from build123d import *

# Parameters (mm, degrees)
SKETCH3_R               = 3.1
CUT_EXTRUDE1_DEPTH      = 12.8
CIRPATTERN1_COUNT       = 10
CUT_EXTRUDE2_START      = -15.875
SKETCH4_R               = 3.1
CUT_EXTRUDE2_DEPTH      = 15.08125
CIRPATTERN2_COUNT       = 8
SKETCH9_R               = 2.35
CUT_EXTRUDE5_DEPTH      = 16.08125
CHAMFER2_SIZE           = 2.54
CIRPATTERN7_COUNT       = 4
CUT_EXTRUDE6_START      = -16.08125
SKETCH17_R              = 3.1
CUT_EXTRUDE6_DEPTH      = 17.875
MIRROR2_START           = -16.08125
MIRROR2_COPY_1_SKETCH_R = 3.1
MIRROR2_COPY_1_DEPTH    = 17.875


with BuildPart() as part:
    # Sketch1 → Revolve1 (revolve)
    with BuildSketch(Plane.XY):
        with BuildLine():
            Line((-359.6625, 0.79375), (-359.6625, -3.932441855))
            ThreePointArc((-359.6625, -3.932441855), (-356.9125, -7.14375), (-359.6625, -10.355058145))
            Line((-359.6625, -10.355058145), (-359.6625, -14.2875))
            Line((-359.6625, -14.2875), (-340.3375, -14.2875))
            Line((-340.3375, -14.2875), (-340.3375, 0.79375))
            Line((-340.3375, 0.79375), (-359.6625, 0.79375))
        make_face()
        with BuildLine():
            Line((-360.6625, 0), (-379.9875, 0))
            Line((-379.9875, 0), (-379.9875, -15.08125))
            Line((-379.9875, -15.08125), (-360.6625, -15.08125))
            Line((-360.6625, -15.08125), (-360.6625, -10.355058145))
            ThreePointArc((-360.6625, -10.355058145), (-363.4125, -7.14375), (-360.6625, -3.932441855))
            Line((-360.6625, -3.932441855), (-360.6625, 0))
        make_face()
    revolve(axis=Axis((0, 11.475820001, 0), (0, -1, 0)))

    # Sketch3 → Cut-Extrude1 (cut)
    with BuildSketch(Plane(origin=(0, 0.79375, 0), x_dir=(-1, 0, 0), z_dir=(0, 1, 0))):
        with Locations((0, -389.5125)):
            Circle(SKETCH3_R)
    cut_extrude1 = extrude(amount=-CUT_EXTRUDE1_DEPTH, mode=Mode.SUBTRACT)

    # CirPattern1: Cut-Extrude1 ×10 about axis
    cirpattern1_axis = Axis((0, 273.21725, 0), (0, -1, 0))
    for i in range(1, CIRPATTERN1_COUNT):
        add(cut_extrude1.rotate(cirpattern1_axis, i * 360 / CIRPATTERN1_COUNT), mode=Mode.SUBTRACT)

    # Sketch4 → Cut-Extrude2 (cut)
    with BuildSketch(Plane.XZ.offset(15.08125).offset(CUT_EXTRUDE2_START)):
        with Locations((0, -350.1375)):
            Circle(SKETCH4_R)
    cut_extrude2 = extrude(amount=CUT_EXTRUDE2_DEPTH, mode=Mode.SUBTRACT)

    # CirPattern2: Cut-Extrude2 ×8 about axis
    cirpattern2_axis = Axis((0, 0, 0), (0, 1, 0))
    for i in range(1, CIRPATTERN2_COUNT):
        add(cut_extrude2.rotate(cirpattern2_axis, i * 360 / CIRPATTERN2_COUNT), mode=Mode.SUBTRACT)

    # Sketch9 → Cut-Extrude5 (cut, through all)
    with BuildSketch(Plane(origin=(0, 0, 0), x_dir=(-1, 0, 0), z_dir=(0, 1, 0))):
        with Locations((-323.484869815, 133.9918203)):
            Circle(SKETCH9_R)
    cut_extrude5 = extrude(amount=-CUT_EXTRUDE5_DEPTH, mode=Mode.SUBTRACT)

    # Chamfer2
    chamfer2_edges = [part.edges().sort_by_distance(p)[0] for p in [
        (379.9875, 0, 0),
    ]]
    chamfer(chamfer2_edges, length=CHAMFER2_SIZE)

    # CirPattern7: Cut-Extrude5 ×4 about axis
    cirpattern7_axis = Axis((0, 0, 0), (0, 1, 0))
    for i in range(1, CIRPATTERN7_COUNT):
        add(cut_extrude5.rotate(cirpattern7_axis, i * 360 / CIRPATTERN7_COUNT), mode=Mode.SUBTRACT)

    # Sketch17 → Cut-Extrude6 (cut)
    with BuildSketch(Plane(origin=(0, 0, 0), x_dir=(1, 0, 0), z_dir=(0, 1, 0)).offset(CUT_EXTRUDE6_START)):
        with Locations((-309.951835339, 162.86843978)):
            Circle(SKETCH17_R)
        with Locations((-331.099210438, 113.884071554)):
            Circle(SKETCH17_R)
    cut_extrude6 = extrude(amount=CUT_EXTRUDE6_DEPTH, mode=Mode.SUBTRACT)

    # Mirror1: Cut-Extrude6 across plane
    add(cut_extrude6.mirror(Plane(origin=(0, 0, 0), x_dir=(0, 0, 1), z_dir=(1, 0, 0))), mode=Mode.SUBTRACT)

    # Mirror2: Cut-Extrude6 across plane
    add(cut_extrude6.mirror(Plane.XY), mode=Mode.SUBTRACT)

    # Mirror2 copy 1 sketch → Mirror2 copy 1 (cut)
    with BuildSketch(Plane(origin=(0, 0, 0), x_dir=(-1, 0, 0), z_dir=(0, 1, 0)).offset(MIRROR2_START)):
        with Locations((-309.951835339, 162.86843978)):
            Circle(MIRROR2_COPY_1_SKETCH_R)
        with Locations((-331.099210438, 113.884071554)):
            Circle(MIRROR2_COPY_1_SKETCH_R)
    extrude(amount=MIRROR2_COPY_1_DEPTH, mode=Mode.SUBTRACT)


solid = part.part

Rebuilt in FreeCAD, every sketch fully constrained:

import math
import FreeCAD as App
import Part
import Sketcher
from FreeCAD import Vector


def edges_at(feature, points):
    """Names of the edges that pass closest to the given points."""
    edges = feature.Shape.Edges
    near = lambda p: min(range(len(edges)), key=lambda i: edges[i].distToShape(Part.Vertex(*p))[0])
    return sorted({f"Edge{near(p) + 1}" for p in points})

doc = App.newDocument("Part")
body = doc.addObject("PartDesign::Body", "Body")
body.AllowCompound = True

sketch1 = body.newObject("Sketcher::SketchObject", "Sketch")
sketch1.AttachmentSupport = (doc.getObject("XY_Plane"), [""])
sketch1.MapMode = "FlatFace"
sketch1.addGeometry(Part.LineSegment(Vector(-359.6625, 0.79375, 0), Vector(-359.6625, -3.932442, 0)), False)
sketch1.addGeometry(Part.ArcOfCircle(Part.Circle(Vector(-360.1625, -7.14375, 0), Vector(0, 0, 1), 3.25), math.radians(-81.150117), math.radians(81.150117)), False)
sketch1.addGeometry(Part.LineSegment(Vector(-359.6625, -10.355058, 0), Vector(-359.6625, -14.2875, 0)), False)
sketch1.addGeometry(Part.LineSegment(Vector(-359.6625, -14.2875, 0), Vector(-340.3375, -14.2875, 0)), False)
sketch1.addGeometry(Part.LineSegment(Vector(-340.3375, -14.2875, 0), Vector(-340.3375, 0.79375, 0)), False)
sketch1.addGeometry(Part.LineSegment(Vector(-340.3375, 0.79375, 0), Vector(-359.6625, 0.79375, 0)), False)
sketch1.addGeometry(Part.LineSegment(Vector(-360.6625, 0, 0), Vector(-379.9875, 0, 0)), False)
sketch1.addGeometry(Part.LineSegment(Vector(-379.9875, 0, 0), Vector(-379.9875, -15.08125, 0)), False)
sketch1.addGeometry(Part.LineSegment(Vector(-379.9875, -15.08125, 0), Vector(-360.6625, -15.08125, 0)), False)
sketch1.addGeometry(Part.LineSegment(Vector(-360.6625, -15.08125, 0), Vector(-360.6625, -10.355058, 0)), False)
sketch1.addGeometry(Part.ArcOfCircle(Part.Circle(Vector(-360.1625, -7.14375, 0), Vector(0, 0, 1), 3.25), math.radians(98.849883), math.radians(261.150117)), False)
sketch1.addGeometry(Part.LineSegment(Vector(-360.6625, -3.932442, 0), Vector(-360.6625, 0, 0)), False)
sketch1.addConstraint(Sketcher.Constraint("Coincident", 0, 2, 1, 2))
sketch1.addConstraint(Sketcher.Constraint("Coincident", 1, 1, 2, 1))
sketch1.addConstraint(Sketcher.Constraint("Coincident", 2, 2, 3, 1))
sketch1.addConstraint(Sketcher.Constraint("Coincident", 3, 2, 4, 1))
sketch1.addConstraint(Sketcher.Constraint("Coincident", 4, 2, 5, 1))
sketch1.addConstraint(Sketcher.Constraint("Coincident", 5, 2, 0, 1))
sketch1.addConstraint(Sketcher.Constraint("Coincident", 6, 2, 7, 1))
sketch1.addConstraint(Sketcher.Constraint("Coincident", 7, 2, 8, 1))
sketch1.addConstraint(Sketcher.Constraint("Coincident", 8, 2, 9, 1))
sketch1.addConstraint(Sketcher.Constraint("Coincident", 9, 2, 10, 2))
sketch1.addConstraint(Sketcher.Constraint("Coincident", 10, 1, 11, 1))
sketch1.addConstraint(Sketcher.Constraint("Coincident", 11, 2, 6, 1))
sketch1.addConstraint(Sketcher.Constraint("Vertical", 0))
sketch1.addConstraint(Sketcher.Constraint("Vertical", 2))
sketch1.addConstraint(Sketcher.Constraint("Horizontal", 3))
sketch1.addConstraint(Sketcher.Constraint("Vertical", 4))
sketch1.addConstraint(Sketcher.Constraint("Horizontal", 5))
sketch1.addConstraint(Sketcher.Constraint("Horizontal", 6))
sketch1.addConstraint(Sketcher.Constraint("Vertical", 7))
sketch1.addConstraint(Sketcher.Constraint("Horizontal", 8))
sketch1.addConstraint(Sketcher.Constraint("Vertical", 9))
sketch1.addConstraint(Sketcher.Constraint("Vertical", 11))
sketch1.addConstraint(Sketcher.Constraint("Coincident", 10, 3, 1, 3))
sketch1.addConstraint(Sketcher.Constraint("Equal", 1, 10))
sketch1.addConstraint(Sketcher.Constraint("PointOnObject", 6, 2, -1))
sketch1.addConstraint(Sketcher.Constraint("Horizontal", 1, 1, 9, 2))
sketch1.addConstraint(Sketcher.Constraint("Horizontal", 0, 2, 10, 1))
sketch1.addConstraint(Sketcher.Constraint("Vertical", 0, 2, 1, 1))
sketch1.addConstraint(Sketcher.Constraint("Equal", 5, 6))
sketch1.addConstraint(Sketcher.Constraint("Equal", 4, 7))
sketch1.addConstraint(Sketcher.Constraint("Equal", 0, 9))
sketch1.addConstraint(Sketcher.Constraint("Radius", 1, 3.25))
sketch1.addConstraint(Sketcher.Constraint("DistanceX", 8, 2, 2, 2, 1.0))
sketch1.addConstraint(Sketcher.Constraint("DistanceX", 3, 1, 3, 2, 19.325))
sketch1.addConstraint(Sketcher.Constraint("DistanceY", 0, 2, 0, 1, 4.726192))
sketch1.addConstraint(Sketcher.Constraint("DistanceY", 2, 2, 2, 1, 3.932442))
sketch1.addConstraint(Sketcher.Constraint("DistanceX", 1, 3, -1, 1, 360.1625))
revolution = body.newObject("PartDesign::Revolution", "Revolution")
revolution.Profile = sketch1
revolution.ReferenceAxis = (sketch1, ["V_Axis"])
revolution.Angle = 360

sketch2 = body.newObject("Sketcher::SketchObject", "Sketch001")
sketch2.AttachmentSupport = (doc.getObject("XZ_Plane"), [""])
sketch2.MapMode = "FlatFace"
sketch2.AttachmentOffset = App.Placement(Vector(0, 0, -0.79375), App.Rotation())
sketch2.addGeometry(Part.Circle(Vector(0, -389.5125, 0), Vector(0, 0, 1), 3.1), False)
sketch2.addConstraint(Sketcher.Constraint("PointOnObject", 0, 3, -2))
sketch2.addConstraint(Sketcher.Constraint("Diameter", 0, 6.2))
sketch2.addConstraint(Sketcher.Constraint("DistanceY", 0, 3, -1, 1, 389.5125))
pocket1 = body.newObject("PartDesign::Pocket", "Pocket")
pocket1.Profile = sketch2
pocket1.Length = 12.8
pocket1.Reversed = True
doc.recompute()

polarpattern = body.newObject("PartDesign::PolarPattern", "PolarPattern")
polarpattern.Originals = [pocket1]
polarpattern.Axis = (doc.getObject("Y_Axis"), [""])
polarpattern.Angle = 360
polarpattern.Occurrences = 10
body.Tip = polarpattern

sketch3 = body.newObject("Sketcher::SketchObject", "Sketch002")
sketch3.AttachmentSupport = (doc.getObject("XZ_Plane"), [""])
sketch3.MapMode = "FlatFace"
sketch3.AttachmentOffset = App.Placement(Vector(0, 0, -0.79375), App.Rotation())
sketch3.addGeometry(Part.Circle(Vector(0, -350.1375, 0), Vector(0, 0, 1), 3.1), False)
sketch3.addConstraint(Sketcher.Constraint("PointOnObject", 0, 3, -2))
sketch3.addConstraint(Sketcher.Constraint("Diameter", 0, 6.2))
sketch3.addConstraint(Sketcher.Constraint("DistanceY", 0, 3, -1, 1, 350.1375))
pocket2 = body.newObject("PartDesign::Pocket", "Pocket001")
pocket2.Profile = sketch3
pocket2.Length = 15.08125
pocket2.Reversed = True
doc.recompute()

polarpattern2 = body.newObject("PartDesign::PolarPattern", "PolarPattern001")
polarpattern2.Originals = [pocket2]
polarpattern2.Axis = (doc.getObject("Y_Axis"), [""])
polarpattern2.Angle = 360
polarpattern2.Occurrences = 8
body.Tip = polarpattern2

sketch4 = body.newObject("Sketcher::SketchObject", "Sketch003")
sketch4.AttachmentSupport = (doc.getObject("XZ_Plane"), [""])
sketch4.MapMode = "FlatFace"
sketch4.addGeometry(Part.Circle(Vector(323.48487, 133.99182, 0), Vector(0, 0, 1), 2.35), False)
sketch4.addConstraint(Sketcher.Constraint("Diameter", 0, 4.7))
sketch4.addConstraint(Sketcher.Constraint("DistanceX", -1, 1, 0, 3, 323.48487))
sketch4.addConstraint(Sketcher.Constraint("DistanceY", -1, 1, 0, 3, 133.99182))
pocket3 = body.newObject("PartDesign::Pocket", "Pocket002")
pocket3.Profile = sketch4
pocket3.Type = "ThroughAll"
pocket3.Reversed = True
doc.recompute()

chamfer = body.newObject("PartDesign::Chamfer", "Chamfer")
chamfer.Base = (pocket3, edges_at(pocket3, [(379.988, 0, 0)]))
chamfer.Size = 2.54
doc.recompute()

polarpattern3 = body.newObject("PartDesign::PolarPattern", "PolarPattern002")
polarpattern3.Originals = [pocket3]
polarpattern3.Axis = (doc.getObject("Y_Axis"), [""])
polarpattern3.Angle = 360
polarpattern3.Occurrences = 4
body.Tip = polarpattern3

sketch5 = body.newObject("Sketcher::SketchObject", "Sketch004")
sketch5.AttachmentSupport = (doc.getObject("XZ_Plane"), [""])
sketch5.MapMode = "FlatFace"
sketch5.AttachmentOffset = App.Placement(Vector(0, 0, 16.08125), App.Rotation())
sketch5.addGeometry(Part.Circle(Vector(-309.951835, -162.86844, 0), Vector(0, 0, 1), 3.1), False)
sketch5.addGeometry(Part.Circle(Vector(-331.09921, -113.884072, 0), Vector(0, 0, 1), 3.1), False)
sketch5.addConstraint(Sketcher.Constraint("Equal", 0, 1))
sketch5.addConstraint(Sketcher.Constraint("Diameter", 0, 6.2))
sketch5.addConstraint(Sketcher.Constraint("DistanceY", 0, 3, -1, 1, 162.86844))
sketch5.addConstraint(Sketcher.Constraint("DistanceX", 1, 3, -1, 1, 331.09921))
sketch5.addConstraint(Sketcher.Constraint("DistanceY", 1, 3, -1, 1, 113.884072))
sketch5.addConstraint(Sketcher.Constraint("DistanceX", 0, 3, -1, 1, 309.951835))
pocket4 = body.newObject("PartDesign::Pocket", "Pocket003")
pocket4.Profile = sketch5
pocket4.Length = 17.875
doc.recompute()

mirrored = body.newObject("PartDesign::Mirrored", "Mirrored")
mirrored.Originals = [pocket4]
mirrored.MirrorPlane = (doc.getObject("YZ_Plane"), [""])
body.Tip = mirrored
doc.recompute()

mirrored2 = body.newObject("PartDesign::Mirrored", "Mirrored001")
mirrored2.Originals = [pocket4]
mirrored2.MirrorPlane = (doc.getObject("XY_Plane"), [""])
body.Tip = mirrored2

sketch6 = body.newObject("Sketcher::SketchObject", "Sketch005")
sketch6.AttachmentSupport = (doc.getObject("XZ_Plane"), [""])
sketch6.MapMode = "FlatFace"
sketch6.AttachmentOffset = App.Placement(Vector(0, 0, 16.08125), App.Rotation())
sketch6.addGeometry(Part.Circle(Vector(309.951835, 162.86844, 0), Vector(0, 0, 1), 3.1), False)
sketch6.addGeometry(Part.Circle(Vector(331.09921, 113.884072, 0), Vector(0, 0, 1), 3.1), False)
sketch6.addConstraint(Sketcher.Constraint("Equal", 0, 1))
sketch6.addConstraint(Sketcher.Constraint("Diameter", 0, 6.2))
sketch6.addConstraint(Sketcher.Constraint("DistanceY", -1, 1, 0, 3, 162.86844))
sketch6.addConstraint(Sketcher.Constraint("DistanceX", -1, 1, 1, 3, 331.09921))
sketch6.addConstraint(Sketcher.Constraint("DistanceY", -1, 1, 1, 3, 113.884072))
sketch6.addConstraint(Sketcher.Constraint("DistanceX", -1, 1, 0, 3, 309.951835))
pocket5 = body.newObject("PartDesign::Pocket", "Pocket004")
pocket5.Profile = sketch6
pocket5.Length = 17.875

doc.recompute()
